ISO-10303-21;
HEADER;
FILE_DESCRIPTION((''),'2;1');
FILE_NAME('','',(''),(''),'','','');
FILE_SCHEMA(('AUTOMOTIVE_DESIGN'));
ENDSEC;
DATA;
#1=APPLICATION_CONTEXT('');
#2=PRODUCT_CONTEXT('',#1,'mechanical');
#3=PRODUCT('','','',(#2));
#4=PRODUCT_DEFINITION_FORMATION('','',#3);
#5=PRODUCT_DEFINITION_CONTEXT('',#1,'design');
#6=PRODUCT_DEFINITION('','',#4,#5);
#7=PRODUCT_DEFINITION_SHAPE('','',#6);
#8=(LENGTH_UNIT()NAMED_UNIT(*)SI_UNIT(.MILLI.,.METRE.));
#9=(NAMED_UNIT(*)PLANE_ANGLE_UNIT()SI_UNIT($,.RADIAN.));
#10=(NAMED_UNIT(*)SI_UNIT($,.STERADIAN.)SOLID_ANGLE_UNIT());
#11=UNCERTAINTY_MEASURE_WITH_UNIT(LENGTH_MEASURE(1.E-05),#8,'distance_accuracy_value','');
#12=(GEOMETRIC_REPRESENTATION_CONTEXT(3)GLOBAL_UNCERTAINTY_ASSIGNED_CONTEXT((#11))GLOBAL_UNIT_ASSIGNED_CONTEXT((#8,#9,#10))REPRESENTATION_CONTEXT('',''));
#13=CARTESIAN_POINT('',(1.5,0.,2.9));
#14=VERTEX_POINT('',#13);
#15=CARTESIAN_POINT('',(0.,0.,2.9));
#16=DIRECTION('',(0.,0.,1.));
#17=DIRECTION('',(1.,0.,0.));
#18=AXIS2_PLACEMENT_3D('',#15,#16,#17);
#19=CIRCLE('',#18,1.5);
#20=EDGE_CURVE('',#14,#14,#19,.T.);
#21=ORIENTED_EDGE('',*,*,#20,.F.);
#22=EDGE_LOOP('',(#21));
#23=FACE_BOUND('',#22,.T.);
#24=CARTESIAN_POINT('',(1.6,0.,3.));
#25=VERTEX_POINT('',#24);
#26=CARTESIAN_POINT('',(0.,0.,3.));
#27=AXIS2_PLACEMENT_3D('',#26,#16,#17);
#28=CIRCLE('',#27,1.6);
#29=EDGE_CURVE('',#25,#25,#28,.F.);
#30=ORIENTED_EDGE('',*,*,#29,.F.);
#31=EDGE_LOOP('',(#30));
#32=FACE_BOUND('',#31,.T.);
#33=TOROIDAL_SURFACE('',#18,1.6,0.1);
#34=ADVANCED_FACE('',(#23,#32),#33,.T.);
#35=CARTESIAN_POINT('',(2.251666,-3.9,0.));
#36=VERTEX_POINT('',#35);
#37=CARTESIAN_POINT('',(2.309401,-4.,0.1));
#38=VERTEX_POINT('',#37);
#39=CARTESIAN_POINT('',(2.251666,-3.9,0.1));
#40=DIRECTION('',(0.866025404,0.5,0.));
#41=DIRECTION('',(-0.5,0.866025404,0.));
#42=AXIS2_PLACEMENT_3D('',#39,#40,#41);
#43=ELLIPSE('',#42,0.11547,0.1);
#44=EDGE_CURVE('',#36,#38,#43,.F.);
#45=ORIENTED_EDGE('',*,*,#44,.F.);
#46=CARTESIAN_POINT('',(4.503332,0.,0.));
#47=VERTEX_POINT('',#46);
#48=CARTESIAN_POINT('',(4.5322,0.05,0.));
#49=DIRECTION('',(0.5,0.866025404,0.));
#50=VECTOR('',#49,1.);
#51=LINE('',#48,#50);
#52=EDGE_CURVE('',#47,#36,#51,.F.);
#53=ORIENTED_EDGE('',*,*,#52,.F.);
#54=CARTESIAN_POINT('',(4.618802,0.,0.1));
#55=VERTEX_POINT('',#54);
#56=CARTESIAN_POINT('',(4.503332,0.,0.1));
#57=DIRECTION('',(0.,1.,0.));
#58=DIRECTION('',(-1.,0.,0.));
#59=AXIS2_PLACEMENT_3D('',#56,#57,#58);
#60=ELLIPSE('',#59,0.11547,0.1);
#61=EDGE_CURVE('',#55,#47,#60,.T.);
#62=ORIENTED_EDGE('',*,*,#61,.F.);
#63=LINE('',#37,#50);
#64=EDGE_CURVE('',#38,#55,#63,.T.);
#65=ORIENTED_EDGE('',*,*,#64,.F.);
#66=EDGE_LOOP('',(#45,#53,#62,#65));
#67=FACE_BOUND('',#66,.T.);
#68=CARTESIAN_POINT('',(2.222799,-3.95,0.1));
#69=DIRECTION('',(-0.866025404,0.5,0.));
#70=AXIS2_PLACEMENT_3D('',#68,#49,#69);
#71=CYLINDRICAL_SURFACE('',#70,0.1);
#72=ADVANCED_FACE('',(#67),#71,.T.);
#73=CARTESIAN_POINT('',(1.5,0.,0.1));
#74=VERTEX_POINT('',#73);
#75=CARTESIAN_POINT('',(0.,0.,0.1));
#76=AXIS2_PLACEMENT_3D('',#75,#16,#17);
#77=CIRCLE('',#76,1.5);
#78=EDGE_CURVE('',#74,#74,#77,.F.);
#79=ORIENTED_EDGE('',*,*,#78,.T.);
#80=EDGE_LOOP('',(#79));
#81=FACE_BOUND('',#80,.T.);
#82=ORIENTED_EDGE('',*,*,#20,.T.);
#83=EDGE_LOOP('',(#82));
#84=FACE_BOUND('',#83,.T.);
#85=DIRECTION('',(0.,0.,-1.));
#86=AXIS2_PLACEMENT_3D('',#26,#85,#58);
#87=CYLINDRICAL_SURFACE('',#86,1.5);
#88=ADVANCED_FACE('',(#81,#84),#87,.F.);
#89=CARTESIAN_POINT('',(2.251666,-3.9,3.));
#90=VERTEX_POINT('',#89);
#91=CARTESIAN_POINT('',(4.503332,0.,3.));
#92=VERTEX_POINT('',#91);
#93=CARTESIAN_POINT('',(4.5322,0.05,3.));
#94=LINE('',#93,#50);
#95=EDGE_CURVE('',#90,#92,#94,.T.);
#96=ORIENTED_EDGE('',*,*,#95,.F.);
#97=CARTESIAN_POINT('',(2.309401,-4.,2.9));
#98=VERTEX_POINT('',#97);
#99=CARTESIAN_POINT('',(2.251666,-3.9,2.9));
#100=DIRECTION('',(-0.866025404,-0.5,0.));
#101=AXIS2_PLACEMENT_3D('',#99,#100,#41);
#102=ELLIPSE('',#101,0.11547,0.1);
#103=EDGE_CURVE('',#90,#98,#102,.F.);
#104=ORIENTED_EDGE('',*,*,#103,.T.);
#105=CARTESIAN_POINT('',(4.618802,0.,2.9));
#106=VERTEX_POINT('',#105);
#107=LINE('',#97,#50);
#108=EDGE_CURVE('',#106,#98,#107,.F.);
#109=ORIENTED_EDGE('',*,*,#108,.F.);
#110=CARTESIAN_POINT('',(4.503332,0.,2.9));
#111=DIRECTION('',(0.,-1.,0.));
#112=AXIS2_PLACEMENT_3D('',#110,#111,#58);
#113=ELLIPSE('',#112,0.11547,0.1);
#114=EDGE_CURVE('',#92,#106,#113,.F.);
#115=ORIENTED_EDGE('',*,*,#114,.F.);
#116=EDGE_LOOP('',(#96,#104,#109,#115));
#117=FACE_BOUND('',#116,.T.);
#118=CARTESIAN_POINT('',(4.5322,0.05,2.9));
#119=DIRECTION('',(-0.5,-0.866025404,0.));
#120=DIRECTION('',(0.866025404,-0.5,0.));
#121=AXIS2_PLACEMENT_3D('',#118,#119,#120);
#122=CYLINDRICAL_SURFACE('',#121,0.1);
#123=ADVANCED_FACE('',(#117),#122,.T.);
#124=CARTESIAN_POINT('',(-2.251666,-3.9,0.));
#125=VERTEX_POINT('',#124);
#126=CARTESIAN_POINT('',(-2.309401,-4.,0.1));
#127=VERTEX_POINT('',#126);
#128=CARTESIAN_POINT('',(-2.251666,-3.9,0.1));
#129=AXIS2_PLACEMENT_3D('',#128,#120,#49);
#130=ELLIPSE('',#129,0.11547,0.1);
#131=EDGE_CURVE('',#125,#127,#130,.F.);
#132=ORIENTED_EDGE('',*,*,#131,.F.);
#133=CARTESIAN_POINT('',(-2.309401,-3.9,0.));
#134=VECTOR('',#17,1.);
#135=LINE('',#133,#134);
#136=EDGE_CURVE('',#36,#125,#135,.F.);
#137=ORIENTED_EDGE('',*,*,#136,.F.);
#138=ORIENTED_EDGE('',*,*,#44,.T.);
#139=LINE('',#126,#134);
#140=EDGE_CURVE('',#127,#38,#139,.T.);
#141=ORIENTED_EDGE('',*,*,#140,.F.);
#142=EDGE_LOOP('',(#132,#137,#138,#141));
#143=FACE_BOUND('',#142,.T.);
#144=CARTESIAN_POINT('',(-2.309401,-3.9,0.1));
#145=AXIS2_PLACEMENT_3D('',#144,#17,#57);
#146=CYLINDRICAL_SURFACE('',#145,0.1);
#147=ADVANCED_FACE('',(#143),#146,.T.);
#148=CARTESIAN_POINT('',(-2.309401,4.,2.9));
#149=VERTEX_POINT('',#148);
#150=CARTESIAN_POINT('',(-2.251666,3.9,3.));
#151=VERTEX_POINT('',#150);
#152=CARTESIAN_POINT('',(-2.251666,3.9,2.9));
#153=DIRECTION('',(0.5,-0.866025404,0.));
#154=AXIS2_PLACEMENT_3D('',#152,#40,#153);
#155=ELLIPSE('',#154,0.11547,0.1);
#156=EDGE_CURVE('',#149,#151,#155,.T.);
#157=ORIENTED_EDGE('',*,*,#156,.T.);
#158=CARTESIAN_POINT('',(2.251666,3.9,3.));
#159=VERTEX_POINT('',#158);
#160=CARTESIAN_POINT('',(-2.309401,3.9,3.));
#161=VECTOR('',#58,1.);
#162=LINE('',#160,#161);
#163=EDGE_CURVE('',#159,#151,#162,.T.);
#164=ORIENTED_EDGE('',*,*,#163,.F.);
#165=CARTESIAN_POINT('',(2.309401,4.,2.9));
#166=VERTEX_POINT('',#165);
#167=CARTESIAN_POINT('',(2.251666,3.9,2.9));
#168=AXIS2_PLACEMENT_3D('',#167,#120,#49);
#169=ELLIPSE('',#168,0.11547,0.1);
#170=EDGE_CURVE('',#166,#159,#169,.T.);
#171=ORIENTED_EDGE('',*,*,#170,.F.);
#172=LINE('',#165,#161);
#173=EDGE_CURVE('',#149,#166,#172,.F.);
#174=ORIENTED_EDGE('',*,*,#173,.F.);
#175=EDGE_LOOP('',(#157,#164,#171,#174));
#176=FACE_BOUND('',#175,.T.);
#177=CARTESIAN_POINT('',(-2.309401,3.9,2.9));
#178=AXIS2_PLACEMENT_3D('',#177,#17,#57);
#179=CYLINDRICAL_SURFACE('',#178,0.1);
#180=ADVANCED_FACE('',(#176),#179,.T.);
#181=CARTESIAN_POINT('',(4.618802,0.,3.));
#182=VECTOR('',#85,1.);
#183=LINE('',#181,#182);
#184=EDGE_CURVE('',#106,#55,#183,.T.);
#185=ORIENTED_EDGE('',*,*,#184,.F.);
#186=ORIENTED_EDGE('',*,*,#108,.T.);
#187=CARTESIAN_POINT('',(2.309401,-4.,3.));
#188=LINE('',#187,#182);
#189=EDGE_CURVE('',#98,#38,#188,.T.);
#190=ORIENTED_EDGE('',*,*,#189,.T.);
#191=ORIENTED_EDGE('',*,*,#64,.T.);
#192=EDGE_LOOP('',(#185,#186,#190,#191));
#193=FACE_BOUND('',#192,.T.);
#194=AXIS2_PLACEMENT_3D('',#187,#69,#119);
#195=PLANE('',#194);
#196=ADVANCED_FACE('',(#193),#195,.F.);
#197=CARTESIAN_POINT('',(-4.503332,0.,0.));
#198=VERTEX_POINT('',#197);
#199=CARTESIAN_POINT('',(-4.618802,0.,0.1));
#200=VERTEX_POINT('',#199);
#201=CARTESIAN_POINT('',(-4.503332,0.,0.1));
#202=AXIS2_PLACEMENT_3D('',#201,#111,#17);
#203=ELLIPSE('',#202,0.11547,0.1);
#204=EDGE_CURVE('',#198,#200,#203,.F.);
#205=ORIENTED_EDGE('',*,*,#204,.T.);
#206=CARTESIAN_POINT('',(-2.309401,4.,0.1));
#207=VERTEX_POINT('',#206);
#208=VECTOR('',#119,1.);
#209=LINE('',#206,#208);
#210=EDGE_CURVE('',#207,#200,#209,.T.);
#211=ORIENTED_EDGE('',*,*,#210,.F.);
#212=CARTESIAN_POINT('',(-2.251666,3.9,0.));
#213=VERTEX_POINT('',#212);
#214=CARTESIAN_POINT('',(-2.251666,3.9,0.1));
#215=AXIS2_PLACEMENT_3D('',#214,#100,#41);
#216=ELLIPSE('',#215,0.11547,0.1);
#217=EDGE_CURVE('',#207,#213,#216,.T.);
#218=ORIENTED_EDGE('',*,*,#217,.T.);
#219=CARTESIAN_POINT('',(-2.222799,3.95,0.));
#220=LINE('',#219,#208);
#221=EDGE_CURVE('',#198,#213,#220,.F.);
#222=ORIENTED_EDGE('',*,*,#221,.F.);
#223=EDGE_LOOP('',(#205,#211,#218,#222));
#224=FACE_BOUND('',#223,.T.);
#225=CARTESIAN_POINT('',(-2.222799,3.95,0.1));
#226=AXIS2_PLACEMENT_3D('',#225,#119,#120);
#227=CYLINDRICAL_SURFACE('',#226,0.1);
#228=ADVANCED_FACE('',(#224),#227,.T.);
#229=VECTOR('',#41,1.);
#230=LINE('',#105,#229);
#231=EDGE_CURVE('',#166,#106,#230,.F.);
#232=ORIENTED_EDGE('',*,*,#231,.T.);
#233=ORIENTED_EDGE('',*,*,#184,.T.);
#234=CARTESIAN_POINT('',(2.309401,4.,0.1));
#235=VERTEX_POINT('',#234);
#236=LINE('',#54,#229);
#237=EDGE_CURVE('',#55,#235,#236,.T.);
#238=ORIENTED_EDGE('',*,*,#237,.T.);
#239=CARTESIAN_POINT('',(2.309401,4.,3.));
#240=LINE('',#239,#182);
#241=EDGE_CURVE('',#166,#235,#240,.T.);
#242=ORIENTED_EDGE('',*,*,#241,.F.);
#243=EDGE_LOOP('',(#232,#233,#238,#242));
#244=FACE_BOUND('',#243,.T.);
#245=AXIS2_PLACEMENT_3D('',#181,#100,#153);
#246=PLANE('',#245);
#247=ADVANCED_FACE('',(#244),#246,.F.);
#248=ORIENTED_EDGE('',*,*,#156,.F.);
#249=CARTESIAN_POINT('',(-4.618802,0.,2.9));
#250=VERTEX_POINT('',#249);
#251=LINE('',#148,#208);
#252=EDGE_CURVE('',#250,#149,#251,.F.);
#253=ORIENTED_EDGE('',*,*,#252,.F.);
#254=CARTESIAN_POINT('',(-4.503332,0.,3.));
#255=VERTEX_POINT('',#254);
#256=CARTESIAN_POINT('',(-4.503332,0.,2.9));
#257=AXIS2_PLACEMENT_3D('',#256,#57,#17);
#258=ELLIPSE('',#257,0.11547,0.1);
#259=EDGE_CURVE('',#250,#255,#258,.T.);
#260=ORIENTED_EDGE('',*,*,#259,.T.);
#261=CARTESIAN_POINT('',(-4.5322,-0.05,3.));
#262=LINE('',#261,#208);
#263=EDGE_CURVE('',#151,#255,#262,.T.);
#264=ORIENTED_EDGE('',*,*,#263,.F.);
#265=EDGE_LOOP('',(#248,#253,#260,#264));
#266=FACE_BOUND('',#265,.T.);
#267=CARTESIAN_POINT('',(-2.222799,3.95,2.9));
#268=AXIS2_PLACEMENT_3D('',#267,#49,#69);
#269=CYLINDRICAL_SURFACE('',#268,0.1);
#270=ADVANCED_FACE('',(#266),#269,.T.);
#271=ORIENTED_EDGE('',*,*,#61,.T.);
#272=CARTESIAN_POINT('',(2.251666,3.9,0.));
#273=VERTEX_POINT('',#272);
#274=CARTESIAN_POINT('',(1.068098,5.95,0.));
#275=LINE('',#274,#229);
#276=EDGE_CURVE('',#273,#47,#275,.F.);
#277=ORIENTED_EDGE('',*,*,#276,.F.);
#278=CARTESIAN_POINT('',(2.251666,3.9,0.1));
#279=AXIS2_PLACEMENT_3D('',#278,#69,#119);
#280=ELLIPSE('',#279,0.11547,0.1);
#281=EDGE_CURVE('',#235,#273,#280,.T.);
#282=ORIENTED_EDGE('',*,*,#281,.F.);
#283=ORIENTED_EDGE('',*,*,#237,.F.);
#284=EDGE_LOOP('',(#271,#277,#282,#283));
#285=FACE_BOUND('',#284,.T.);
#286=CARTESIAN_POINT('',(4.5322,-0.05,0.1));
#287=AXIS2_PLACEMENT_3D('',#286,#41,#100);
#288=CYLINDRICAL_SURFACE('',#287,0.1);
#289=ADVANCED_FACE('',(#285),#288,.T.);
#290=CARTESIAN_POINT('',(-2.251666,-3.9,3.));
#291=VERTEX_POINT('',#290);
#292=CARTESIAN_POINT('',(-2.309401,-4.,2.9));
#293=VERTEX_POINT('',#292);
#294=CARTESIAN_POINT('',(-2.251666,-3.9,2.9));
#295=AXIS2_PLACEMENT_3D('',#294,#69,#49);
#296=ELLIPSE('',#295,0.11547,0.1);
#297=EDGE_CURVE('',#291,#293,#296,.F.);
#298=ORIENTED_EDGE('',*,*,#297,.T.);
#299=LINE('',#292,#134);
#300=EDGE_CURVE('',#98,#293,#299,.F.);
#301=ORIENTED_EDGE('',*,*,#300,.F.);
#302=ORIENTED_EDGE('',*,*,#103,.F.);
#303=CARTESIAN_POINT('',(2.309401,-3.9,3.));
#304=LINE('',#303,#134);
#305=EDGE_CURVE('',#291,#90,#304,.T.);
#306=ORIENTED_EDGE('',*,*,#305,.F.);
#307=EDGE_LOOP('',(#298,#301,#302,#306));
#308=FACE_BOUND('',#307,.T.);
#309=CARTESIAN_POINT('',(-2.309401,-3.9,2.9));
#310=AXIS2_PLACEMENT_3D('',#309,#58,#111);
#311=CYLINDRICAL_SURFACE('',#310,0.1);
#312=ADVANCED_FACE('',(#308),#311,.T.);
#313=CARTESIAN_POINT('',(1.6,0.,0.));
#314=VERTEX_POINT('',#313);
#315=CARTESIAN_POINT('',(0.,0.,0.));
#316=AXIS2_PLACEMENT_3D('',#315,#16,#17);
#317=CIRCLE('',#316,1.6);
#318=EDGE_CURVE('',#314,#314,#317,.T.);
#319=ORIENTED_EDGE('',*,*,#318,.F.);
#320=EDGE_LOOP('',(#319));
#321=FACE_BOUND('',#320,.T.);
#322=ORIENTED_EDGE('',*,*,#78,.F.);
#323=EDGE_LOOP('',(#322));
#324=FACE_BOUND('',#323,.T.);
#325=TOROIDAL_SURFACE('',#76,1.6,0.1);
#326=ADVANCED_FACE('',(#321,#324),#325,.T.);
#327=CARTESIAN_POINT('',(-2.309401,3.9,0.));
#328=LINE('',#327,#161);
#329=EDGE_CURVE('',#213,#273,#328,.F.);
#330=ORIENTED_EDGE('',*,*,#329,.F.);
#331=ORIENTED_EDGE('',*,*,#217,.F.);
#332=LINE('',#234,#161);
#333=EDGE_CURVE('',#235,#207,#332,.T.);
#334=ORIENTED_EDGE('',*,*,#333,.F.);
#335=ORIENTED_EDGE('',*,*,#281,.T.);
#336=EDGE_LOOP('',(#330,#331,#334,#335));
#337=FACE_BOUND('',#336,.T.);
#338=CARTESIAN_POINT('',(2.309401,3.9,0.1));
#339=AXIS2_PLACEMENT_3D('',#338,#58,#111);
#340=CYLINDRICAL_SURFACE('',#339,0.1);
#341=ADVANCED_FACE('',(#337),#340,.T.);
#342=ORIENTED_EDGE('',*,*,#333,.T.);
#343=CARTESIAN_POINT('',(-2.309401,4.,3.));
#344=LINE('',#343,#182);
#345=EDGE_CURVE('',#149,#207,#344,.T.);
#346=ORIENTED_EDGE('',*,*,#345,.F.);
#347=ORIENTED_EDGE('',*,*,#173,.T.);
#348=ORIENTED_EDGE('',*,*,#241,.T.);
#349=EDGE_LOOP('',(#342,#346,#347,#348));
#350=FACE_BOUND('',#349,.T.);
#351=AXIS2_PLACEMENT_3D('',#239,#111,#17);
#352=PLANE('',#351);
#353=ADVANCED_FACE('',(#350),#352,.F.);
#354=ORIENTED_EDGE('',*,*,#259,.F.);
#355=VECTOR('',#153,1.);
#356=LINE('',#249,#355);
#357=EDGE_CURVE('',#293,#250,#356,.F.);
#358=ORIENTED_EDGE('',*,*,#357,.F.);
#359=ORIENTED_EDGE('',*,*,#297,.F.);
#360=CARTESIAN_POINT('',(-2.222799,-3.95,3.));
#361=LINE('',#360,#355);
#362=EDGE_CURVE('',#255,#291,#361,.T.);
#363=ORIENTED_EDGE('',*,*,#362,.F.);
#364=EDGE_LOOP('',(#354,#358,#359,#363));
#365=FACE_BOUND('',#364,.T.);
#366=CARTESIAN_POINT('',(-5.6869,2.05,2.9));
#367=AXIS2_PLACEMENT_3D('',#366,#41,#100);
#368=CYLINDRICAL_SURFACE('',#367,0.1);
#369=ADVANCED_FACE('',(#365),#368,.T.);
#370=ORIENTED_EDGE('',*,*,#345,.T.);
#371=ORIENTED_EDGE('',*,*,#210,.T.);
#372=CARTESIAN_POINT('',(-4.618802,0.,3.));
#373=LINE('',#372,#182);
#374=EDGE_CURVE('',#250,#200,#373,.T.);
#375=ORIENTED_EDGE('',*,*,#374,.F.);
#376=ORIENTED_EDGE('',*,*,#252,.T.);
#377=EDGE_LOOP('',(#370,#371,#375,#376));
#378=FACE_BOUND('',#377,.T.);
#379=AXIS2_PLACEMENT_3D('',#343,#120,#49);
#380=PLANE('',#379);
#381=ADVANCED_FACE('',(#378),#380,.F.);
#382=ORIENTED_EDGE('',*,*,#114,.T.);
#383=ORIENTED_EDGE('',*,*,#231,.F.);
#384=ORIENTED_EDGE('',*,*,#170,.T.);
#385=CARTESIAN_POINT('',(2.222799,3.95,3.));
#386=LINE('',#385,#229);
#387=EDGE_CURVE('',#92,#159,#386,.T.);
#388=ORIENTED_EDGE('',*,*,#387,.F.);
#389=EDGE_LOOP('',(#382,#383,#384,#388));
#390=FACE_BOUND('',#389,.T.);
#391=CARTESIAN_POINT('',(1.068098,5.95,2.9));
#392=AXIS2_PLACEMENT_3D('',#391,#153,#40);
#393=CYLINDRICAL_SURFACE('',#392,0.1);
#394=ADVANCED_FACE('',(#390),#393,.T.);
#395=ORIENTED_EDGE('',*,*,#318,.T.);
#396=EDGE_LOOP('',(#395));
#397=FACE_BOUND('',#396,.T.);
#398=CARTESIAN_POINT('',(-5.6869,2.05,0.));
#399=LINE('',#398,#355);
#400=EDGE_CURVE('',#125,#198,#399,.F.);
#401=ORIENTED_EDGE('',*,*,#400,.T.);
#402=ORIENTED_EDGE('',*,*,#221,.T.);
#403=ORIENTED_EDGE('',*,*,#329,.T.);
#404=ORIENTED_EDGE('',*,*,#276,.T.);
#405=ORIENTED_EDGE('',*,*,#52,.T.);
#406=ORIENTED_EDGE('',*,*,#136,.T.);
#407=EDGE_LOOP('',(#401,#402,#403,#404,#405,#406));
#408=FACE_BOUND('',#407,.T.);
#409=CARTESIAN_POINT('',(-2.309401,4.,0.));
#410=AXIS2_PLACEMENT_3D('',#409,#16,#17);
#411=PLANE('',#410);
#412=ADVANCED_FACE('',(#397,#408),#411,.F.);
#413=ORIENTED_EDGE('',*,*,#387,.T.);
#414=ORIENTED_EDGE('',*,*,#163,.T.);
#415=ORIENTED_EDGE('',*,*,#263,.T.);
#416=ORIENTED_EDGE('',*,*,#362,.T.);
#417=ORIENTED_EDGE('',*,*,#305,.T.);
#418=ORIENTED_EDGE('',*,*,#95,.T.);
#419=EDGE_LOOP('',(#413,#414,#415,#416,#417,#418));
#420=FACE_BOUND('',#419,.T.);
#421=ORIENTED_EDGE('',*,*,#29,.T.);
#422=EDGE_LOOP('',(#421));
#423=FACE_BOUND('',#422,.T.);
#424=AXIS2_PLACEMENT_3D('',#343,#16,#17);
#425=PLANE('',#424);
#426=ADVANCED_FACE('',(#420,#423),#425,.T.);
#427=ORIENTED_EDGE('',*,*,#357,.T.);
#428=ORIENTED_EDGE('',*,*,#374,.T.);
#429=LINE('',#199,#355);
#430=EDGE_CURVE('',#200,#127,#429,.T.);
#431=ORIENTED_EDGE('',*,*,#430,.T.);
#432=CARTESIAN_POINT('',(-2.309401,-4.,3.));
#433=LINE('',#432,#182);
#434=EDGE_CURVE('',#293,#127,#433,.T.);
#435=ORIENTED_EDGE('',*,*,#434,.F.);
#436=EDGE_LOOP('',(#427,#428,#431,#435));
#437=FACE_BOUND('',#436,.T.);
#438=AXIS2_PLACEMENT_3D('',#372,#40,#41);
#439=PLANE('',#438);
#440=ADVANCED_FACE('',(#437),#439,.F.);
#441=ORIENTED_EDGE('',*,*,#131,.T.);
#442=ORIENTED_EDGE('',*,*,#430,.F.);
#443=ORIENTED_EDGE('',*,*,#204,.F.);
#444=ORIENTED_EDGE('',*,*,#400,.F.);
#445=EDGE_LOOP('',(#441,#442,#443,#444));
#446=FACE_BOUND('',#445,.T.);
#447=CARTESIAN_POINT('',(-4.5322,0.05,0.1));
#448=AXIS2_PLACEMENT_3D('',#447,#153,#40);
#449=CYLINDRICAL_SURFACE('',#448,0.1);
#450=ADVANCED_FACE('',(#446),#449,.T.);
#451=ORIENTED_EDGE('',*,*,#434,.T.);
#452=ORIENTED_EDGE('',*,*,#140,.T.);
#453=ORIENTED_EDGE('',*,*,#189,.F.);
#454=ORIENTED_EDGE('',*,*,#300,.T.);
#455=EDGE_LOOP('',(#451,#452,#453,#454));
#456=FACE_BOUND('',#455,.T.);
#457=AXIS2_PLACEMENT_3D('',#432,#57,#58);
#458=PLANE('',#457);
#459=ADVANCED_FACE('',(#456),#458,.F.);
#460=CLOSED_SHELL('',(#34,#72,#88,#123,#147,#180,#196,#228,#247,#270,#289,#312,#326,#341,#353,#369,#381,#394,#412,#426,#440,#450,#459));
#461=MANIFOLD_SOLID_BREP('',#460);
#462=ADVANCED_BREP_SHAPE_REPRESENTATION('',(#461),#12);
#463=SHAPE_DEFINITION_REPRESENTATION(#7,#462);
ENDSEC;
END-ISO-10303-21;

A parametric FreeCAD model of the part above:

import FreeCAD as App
import Part
import Sketcher

V = App.Vector
Q = App.Units.Quantity


def edges_at(feature, points):
    """Names of the edges that pass closest to the given points."""
    edges = feature.Shape.Edges
    near = lambda p: min(range(len(edges)), key=lambda i: edges[i].distToShape(Part.Vertex(*p))[0])
    return sorted({f"Edge{near(p) + 1}" for p in points})


def add_polygon(sketch, points):
    """Adds a closed chain of lines whose ends are joined by coincident constraints."""
    first, n = sketch.GeometryCount, len(points)
    for a, b in zip(points, points[1:] + points[:1]):
        sketch.addGeometry(Part.LineSegment(App.Vector(*a, 0), App.Vector(*b, 0)), False)
    for i in range(n):
        sketch.addConstraint(Sketcher.Constraint("Coincident", first + i, 2, first + (i + 1) % n, 1))

doc = App.newDocument("Part")
body = doc.addObject("PartDesign::Body", "Body")

sketch1 = body.newObject("Sketcher::SketchObject", "Sketch")
sketch1.AttachmentSupport = (doc.getObject("XY_Plane"), [""])
sketch1.MapMode = "FlatFace"
add_polygon(sketch1, [(-2.3, 4), (-4.6, 0), (-2.3, -4), (2.3, -4), (4.6, 0), (2.3, 4)])
sketch1.addGeometry(Part.Circle(V(0, 0, 0), V(0, 0, 1), 1.5), False)
sketch1.addConstraint(Sketcher.Constraint("Horizontal", 2))
sketch1.addConstraint(Sketcher.Constraint("Horizontal", 5))
sketch1.addConstraint(Sketcher.Constraint("Coincident", 6, 3, -1, 1))
sketch1.addConstraint(Sketcher.Constraint("Symmetric", 0, 2, 3, 2, -1, 1))
sketch1.addConstraint(Sketcher.Constraint("Symmetric", 1, 2, 4, 2, -1, 1))
sketch1.addConstraint(Sketcher.Constraint("PointOnObject", 0, 2, -1))
sketch1.addConstraint(Sketcher.Constraint("Parallel", 0, 3))
sketch1.addConstraint(Sketcher.Constraint("Vertical", 2, 2, 4, 2))
sketch1.addConstraint(Sketcher.Constraint("Diameter", 6, Q("3 mm")))
sketch1.addConstraint(Sketcher.Constraint("Angle", 0, Q("-120 deg")))
sketch1.addConstraint(Sketcher.Constraint("DistanceY", 1, 2, -1, 1, Q("4 mm")))
sketch1.addConstraint(Sketcher.Constraint("DistanceX", 1, 2, -1, 1, Q("2.309401 mm")))
pad1 = body.newObject("PartDesign::Pad", "Pad")
pad1.Profile = sketch1
pad1.Length = 3
doc.recompute()

fillet = body.newObject("PartDesign::Fillet", "Fillet")
fillet.Base = (pad1, edges_at(pad1, [
    (-3.464, -2, 3),
    (0, -4, 3),
    (3.464, -2, 3),
    (-1.5, 0, 0),
    (-1.5, 0, 3),
    (3.464, 2, 3),
    (0, 4, 3),
    (3.464, 2, 0),
    (3.464, -2, 0),
    (0, -4, 0),
    (-3.464, 2, 3),
    (-3.464, -2, 0),
    (-3.464, 2, 0),
    (0, 4, 0),
]))
fillet.Radius = 0.1

doc.recompute()
